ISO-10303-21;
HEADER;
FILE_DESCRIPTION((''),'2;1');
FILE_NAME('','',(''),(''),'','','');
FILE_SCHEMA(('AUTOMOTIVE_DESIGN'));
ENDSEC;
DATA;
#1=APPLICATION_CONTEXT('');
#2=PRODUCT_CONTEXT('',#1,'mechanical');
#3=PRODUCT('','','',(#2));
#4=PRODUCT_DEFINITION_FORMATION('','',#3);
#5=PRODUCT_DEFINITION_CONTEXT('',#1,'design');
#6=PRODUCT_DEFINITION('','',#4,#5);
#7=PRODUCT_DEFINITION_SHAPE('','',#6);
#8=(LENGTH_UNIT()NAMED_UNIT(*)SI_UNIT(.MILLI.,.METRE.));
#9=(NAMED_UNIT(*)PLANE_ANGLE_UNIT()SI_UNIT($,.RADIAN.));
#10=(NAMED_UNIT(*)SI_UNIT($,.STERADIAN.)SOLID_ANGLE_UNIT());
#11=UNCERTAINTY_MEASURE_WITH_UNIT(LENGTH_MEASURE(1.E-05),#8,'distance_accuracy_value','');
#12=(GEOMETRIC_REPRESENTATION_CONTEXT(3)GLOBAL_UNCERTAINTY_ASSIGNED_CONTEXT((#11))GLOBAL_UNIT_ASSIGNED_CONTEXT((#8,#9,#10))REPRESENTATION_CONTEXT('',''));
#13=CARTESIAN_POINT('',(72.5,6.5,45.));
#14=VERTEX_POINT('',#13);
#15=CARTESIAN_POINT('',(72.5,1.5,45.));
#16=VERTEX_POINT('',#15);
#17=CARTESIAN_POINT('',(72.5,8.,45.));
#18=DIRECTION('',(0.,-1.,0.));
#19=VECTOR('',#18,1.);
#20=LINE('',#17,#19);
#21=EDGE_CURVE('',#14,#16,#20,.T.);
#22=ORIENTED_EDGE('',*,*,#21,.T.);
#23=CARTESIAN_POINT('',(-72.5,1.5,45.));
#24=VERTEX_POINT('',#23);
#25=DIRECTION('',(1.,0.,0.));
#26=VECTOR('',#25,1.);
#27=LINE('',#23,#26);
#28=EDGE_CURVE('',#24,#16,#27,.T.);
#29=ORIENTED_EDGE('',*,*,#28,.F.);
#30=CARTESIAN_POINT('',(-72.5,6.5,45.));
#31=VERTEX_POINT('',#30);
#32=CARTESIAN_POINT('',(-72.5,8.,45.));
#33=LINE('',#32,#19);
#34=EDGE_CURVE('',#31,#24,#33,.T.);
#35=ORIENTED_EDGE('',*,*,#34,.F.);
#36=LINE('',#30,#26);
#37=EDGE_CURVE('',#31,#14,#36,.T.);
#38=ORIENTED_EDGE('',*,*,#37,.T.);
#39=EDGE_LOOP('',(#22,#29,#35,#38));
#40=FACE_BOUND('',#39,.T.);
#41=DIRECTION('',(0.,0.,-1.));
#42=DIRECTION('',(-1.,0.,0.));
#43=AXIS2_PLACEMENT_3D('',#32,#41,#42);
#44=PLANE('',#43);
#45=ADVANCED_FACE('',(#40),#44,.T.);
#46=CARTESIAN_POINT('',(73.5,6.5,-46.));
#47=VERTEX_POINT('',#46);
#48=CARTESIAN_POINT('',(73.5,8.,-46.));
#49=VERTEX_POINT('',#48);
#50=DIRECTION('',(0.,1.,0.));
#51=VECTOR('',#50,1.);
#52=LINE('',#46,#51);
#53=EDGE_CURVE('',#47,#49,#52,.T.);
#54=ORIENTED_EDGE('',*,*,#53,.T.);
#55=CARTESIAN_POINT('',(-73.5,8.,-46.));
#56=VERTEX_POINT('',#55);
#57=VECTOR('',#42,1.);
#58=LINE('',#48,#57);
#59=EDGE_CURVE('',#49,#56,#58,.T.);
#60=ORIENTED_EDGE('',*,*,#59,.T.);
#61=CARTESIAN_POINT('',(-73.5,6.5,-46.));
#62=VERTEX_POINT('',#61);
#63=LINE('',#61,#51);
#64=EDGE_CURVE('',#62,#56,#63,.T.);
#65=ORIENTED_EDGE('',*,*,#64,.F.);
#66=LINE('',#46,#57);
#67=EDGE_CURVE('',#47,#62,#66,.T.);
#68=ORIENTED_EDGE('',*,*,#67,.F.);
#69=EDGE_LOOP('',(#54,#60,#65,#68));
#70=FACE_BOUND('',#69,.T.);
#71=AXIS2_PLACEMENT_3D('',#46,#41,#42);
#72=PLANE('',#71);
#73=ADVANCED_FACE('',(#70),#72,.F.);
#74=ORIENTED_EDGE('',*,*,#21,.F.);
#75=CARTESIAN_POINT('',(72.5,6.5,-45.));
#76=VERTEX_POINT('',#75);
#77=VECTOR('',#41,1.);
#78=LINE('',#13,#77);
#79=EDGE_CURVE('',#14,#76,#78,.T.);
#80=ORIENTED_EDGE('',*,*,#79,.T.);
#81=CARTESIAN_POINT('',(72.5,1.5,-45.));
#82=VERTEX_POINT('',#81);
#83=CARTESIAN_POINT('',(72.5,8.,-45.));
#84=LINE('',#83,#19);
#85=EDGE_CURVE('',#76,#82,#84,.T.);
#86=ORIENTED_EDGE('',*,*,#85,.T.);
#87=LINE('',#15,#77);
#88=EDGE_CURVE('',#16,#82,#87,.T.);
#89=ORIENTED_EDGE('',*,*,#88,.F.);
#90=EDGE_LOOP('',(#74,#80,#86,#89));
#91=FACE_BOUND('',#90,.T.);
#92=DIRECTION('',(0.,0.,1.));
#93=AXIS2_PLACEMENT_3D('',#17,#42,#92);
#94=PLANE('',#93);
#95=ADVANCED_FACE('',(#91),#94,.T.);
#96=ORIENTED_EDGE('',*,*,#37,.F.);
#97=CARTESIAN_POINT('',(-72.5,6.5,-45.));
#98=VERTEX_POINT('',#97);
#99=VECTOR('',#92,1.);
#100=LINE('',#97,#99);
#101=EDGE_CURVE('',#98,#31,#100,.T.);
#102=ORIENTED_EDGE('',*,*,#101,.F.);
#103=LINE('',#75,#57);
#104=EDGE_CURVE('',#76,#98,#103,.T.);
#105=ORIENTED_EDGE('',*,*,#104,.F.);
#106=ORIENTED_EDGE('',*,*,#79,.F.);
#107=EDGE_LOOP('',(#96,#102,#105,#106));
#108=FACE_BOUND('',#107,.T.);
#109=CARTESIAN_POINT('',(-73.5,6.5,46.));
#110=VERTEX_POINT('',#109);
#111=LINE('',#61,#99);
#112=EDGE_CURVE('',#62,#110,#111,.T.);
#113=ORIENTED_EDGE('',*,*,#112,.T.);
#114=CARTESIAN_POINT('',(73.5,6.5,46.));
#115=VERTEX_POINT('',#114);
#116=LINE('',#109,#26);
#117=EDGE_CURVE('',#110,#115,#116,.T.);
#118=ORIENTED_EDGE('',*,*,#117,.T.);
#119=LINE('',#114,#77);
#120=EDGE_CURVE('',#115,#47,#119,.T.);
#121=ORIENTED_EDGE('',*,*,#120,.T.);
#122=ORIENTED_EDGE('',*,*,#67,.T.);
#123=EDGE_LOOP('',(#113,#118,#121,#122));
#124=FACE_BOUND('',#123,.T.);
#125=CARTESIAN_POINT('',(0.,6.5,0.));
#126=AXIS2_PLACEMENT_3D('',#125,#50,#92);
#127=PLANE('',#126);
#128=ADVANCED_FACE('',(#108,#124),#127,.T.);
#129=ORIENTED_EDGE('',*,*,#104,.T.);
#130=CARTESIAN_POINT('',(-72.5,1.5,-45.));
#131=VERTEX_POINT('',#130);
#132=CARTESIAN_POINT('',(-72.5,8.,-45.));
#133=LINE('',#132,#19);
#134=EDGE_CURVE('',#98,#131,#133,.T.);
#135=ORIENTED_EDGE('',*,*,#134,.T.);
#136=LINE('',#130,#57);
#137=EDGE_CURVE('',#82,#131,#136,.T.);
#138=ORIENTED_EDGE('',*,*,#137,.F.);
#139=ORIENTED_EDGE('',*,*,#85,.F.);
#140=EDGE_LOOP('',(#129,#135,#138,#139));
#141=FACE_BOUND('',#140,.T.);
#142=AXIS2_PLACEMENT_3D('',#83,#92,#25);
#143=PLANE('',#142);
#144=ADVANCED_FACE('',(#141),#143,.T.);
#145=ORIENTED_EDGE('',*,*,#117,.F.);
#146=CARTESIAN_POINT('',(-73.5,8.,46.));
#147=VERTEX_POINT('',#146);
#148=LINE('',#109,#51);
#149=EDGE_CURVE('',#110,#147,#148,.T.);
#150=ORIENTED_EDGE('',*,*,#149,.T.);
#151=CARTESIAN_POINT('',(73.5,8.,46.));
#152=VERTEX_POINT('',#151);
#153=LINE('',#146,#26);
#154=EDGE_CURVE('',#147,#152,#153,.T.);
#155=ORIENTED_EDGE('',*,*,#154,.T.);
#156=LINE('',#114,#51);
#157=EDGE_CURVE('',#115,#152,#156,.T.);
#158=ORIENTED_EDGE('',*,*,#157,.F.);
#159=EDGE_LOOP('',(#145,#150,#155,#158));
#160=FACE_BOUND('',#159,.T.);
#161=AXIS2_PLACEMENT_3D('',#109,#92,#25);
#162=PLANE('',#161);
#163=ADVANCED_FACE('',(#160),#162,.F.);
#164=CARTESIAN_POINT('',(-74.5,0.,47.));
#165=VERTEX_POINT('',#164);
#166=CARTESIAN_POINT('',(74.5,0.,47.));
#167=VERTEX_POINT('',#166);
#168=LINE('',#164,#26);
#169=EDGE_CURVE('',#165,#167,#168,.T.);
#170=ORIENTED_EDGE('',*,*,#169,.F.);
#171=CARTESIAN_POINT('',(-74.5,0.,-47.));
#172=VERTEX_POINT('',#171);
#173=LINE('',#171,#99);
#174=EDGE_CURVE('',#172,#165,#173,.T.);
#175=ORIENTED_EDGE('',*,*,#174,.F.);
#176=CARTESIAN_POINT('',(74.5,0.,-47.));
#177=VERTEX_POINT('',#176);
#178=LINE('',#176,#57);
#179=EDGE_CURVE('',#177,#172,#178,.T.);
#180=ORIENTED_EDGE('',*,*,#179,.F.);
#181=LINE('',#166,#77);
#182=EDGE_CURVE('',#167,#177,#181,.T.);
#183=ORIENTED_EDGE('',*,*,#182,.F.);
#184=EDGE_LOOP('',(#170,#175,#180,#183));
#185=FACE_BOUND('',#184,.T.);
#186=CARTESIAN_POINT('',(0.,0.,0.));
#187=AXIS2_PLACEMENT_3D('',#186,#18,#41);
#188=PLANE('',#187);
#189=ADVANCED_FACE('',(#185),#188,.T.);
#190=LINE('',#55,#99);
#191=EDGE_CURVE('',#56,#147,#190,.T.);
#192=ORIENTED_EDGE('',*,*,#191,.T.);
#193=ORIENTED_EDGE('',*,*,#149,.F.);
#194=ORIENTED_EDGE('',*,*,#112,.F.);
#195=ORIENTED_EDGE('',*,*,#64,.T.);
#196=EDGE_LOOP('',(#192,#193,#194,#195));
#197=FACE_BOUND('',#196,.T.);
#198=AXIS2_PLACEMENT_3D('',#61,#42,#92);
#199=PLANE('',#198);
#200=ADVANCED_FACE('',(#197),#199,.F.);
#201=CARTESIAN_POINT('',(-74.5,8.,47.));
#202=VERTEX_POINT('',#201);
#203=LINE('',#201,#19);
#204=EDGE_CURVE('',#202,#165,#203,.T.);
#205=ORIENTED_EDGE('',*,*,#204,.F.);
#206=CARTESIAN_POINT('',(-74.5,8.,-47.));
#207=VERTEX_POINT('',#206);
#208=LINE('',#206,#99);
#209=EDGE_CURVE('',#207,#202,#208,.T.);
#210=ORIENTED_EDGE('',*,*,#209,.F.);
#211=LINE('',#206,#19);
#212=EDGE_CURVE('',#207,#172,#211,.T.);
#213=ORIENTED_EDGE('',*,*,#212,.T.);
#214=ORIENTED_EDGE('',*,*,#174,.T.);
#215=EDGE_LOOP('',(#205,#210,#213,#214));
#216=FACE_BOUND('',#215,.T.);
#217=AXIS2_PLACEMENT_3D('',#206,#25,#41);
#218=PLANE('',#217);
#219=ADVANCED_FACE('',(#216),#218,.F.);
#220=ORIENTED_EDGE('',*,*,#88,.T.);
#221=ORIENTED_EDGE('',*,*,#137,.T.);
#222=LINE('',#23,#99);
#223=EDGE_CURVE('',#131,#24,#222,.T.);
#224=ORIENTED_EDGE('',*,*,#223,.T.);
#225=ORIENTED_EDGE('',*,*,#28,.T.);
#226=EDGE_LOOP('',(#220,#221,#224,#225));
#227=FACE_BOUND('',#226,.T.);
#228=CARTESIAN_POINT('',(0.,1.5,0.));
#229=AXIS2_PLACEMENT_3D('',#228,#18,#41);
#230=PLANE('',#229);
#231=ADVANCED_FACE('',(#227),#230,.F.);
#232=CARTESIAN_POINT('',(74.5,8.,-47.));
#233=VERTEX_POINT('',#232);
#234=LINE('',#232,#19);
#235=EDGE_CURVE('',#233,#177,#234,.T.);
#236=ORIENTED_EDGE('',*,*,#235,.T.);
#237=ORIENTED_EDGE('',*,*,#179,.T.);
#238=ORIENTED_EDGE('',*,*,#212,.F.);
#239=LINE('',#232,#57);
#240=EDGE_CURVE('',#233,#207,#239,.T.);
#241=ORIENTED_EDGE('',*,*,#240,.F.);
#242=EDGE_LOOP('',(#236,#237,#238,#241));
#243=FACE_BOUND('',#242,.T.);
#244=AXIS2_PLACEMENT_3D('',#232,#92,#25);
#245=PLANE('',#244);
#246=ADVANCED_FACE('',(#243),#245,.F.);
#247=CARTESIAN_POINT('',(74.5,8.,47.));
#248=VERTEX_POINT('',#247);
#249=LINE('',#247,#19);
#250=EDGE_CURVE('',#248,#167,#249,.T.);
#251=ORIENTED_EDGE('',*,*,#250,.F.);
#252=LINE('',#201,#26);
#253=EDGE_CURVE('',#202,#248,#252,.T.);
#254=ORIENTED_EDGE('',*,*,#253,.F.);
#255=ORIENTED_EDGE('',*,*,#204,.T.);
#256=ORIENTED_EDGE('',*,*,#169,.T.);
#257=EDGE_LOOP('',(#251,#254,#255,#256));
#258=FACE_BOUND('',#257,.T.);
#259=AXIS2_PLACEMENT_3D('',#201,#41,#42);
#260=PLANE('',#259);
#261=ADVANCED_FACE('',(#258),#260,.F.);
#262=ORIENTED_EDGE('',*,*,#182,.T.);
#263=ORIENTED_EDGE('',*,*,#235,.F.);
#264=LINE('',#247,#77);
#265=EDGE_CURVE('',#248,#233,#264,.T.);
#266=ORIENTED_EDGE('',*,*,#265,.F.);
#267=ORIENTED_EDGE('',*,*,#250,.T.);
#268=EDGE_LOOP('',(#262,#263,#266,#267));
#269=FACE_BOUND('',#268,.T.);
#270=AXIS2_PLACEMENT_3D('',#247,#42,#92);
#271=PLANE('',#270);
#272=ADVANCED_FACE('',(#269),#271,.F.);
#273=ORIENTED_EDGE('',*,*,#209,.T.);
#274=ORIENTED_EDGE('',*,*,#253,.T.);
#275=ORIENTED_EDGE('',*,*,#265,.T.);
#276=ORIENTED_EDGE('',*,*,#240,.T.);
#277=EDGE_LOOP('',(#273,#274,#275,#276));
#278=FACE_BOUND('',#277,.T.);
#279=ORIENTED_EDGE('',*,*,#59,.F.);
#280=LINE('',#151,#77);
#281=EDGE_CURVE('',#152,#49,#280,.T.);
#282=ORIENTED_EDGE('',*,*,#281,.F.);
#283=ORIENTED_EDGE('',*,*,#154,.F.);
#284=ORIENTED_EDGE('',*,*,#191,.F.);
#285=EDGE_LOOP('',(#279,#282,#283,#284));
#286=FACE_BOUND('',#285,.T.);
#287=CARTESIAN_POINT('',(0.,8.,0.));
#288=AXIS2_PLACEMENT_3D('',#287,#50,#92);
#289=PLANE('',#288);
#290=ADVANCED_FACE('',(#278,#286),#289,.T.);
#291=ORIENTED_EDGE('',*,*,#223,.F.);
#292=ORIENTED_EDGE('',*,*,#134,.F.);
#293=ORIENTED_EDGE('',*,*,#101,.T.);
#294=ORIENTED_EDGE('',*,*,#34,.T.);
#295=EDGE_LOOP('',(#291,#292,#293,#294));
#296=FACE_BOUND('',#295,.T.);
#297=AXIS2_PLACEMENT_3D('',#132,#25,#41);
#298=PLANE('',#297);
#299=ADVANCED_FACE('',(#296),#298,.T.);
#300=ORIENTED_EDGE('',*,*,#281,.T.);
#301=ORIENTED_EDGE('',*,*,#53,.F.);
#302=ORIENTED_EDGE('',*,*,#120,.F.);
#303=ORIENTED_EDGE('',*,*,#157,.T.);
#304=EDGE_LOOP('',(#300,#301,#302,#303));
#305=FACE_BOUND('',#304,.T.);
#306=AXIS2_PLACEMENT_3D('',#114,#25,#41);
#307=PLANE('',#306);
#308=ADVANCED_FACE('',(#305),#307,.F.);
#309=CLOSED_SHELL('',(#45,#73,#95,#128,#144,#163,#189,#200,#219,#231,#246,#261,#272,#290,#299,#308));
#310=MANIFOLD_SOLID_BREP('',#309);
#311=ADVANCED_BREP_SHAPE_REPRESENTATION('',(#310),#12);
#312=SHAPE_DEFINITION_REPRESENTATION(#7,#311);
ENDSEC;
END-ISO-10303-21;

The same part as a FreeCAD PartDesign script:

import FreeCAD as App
import Part
import Sketcher
from FreeCAD import Vector

doc = App.newDocument("Part")
body = doc.addObject("PartDesign::Body", "Body")

sketch1 = doc.addObject("Sketcher::SketchObject", "Sketch")
body.addObject(sketch1)
sketch1.AttachmentSupport = (doc.XZ_Plane, [""])
sketch1.MapMode = "FlatFace"
sketch1.addGeometry([
    Part.LineSegment(Vector(-72, -45, 0), Vector(-72, 45, 0)),
    Part.LineSegment(Vector(-72, 45, 0), Vector(72, 45, 0)),
    Part.LineSegment(Vector(72, 45, 0), Vector(72, -45, 0)),
    Part.LineSegment(Vector(72, -45, 0), Vector(-72, -45, 0)),
], False)
sketch1.addConstraint([
    Sketcher.Constraint("Coincident", 0, 2, 1, 1),
    Sketcher.Constraint("Coincident", 1, 2, 2, 1),
    Sketcher.Constraint("Coincident", 2, 2, 3, 1),
    Sketcher.Constraint("Coincident", 3, 2, 0, 1),
    Sketcher.Constraint("Vertical", 0),
    Sketcher.Constraint("Horizontal", 1),
    Sketcher.Constraint("Vertical", 2),
    Sketcher.Constraint("Horizontal", 3),
    Sketcher.Constraint("Symmetric", 0, 2, 2, 2, -1, 1),
    Sketcher.Constraint("DistanceX", 1, 1, 1, 2, 145.0),
    Sketcher.Constraint("DistanceY", 0, 1, 0, 2, 90.0),
])
pad1 = doc.addObject("PartDesign::Pad", "Pad")
body.addObject(pad1)
pad1.Profile = sketch1
pad1.Length = 1.5
pad1.Reversed = True

sketch2 = doc.addObject("Sketcher::SketchObject", "Sketch001")
body.addObject(sketch2)
sketch2.AttachmentSupport = (doc.XZ_Plane, [""])
sketch2.MapMode = "FlatFace"
sketch2.addGeometry([
    Part.LineSegment(Vector(-74, -47, 0), Vector(-74, 47, 0)),
    Part.LineSegment(Vector(-74, 47, 0), Vector(74, 47, 0)),
    Part.LineSegment(Vector(74, 47, 0), Vector(74, -47, 0)),
    Part.LineSegment(Vector(74, -47, 0), Vector(-74, -47, 0)),
    Part.LineSegment(Vector(72, 45, 0), Vector(-72, 45, 0)),
    Part.LineSegment(Vector(-72, 45, 0), Vector(-72, -45, 0)),
    Part.LineSegment(Vector(-72, -45, 0), Vector(72, -45, 0)),
    Part.LineSegment(Vector(72, -45, 0), Vector(72, 45, 0)),
], False)
sketch2.addConstraint([
    Sketcher.Constraint("Coincident", 0, 2, 1, 1),
    Sketcher.Constraint("Coincident", 1, 2, 2, 1),
    Sketcher.Constraint("Coincident", 2, 2, 3, 1),
    Sketcher.Constraint("Coincident", 3, 2, 0, 1),
    Sketcher.Constraint("Coincident", 4, 2, 5, 1),
    Sketcher.Constraint("Coincident", 5, 2, 6, 1),
    Sketcher.Constraint("Coincident", 6, 2, 7, 1),
    Sketcher.Constraint("Coincident", 7, 2, 4, 1),
    Sketcher.Constraint("Vertical", 0),
    Sketcher.Constraint("Horizontal", 1),
    Sketcher.Constraint("Vertical", 2),
    Sketcher.Constraint("Horizontal", 3),
    Sketcher.Constraint("Horizontal", 4),
    Sketcher.Constraint("Vertical", 5),
    Sketcher.Constraint("Horizontal", 6),
    Sketcher.Constraint("Vertical", 7),
    Sketcher.Constraint("Symmetric", 0, 2, 2, 2, -1, 1),
    Sketcher.Constraint("Symmetric", 4, 2, 6, 2, -1, 1),
    Sketcher.Constraint("DistanceX", 1, 1, 1, 2, 149.0),
    Sketcher.Constraint("DistanceX", 4, 2, 4, 1, 145.0),
    Sketcher.Constraint("DistanceY", 0, 1, 0, 2, 94.0),
    Sketcher.Constraint("DistanceY", 5, 2, 5, 1, 90.0),
])
pad2 = doc.addObject("PartDesign::Pad", "Pad001")
body.addObject(pad2)
pad2.Profile = sketch2
pad2.Length = 8
pad2.Reversed = True

sketch3 = doc.addObject("Sketcher::SketchObject", "Sketch002")
body.addObject(sketch3)
sketch3.AttachmentSupport = (doc.XZ_Plane, [""])
sketch3.MapMode = "FlatFace"
sketch3.AttachmentOffset = App.Placement(Vector(0, 0, -8), App.Rotation())
sketch3.addGeometry([
    Part.LineSegment(Vector(-74, -46, 0), Vector(-74, 46, 0)),
    Part.LineSegment(Vector(-74, 46, 0), Vector(74, 46, 0)),
    Part.LineSegment(Vector(74, 46, 0), Vector(74, -46, 0)),
    Part.LineSegment(Vector(74, -46, 0), Vector(-74, -46, 0)),
    Part.LineSegment(Vector(72, 45, 0), Vector(-72, 45, 0)),
    Part.LineSegment(Vector(-72, 45, 0), Vector(-72, -45, 0)),
    Part.LineSegment(Vector(-72, -45, 0), Vector(72, -45, 0)),
    Part.LineSegment(Vector(72, -45, 0), Vector(72, 45, 0)),
], False)
sketch3.addConstraint([
    Sketcher.Constraint("Coincident", 0, 2, 1, 1),
    Sketcher.Constraint("Coincident", 1, 2, 2, 1),
    Sketcher.Constraint("Coincident", 2, 2, 3, 1),
    Sketcher.Constraint("Coincident", 3, 2, 0, 1),
    Sketcher.Constraint("Coincident", 4, 2, 5, 1),
    Sketcher.Constraint("Coincident", 5, 2, 6, 1),
    Sketcher.Constraint("Coincident", 6, 2, 7, 1),
    Sketcher.Constraint("Coincident", 7, 2, 4, 1),
    Sketcher.Constraint("Vertical", 0),
    Sketcher.Constraint("Horizontal", 1),
    Sketcher.Constraint("Vertical", 2),
    Sketcher.Constraint("Horizontal", 3),
    Sketcher.Constraint("Horizontal", 4),
    Sketcher.Constraint("Vertical", 5),
    Sketcher.Constraint("Horizontal", 6),
    Sketcher.Constraint("Vertical", 7),
    Sketcher.Constraint("Symmetric", 0, 2, 2, 2, -1, 1),
    Sketcher.Constraint("Symmetric", 4, 2, 6, 2, -1, 1),
    Sketcher.Constraint("DistanceX", 1, 1, 1, 2, 147.0),
    Sketcher.Constraint("DistanceX", 4, 2, 4, 1, 145.0),
    Sketcher.Constraint("DistanceY", 0, 1, 0, 2, 92.0),
    Sketcher.Constraint("DistanceY", 5, 2, 5, 1, 90.0),
])
pocket1 = doc.addObject("PartDesign::Pocket", "Pocket")
body.addObject(pocket1)
pocket1.Profile = sketch3
pocket1.Length = 1.5
pocket1.Reversed = True

doc.recompute()
